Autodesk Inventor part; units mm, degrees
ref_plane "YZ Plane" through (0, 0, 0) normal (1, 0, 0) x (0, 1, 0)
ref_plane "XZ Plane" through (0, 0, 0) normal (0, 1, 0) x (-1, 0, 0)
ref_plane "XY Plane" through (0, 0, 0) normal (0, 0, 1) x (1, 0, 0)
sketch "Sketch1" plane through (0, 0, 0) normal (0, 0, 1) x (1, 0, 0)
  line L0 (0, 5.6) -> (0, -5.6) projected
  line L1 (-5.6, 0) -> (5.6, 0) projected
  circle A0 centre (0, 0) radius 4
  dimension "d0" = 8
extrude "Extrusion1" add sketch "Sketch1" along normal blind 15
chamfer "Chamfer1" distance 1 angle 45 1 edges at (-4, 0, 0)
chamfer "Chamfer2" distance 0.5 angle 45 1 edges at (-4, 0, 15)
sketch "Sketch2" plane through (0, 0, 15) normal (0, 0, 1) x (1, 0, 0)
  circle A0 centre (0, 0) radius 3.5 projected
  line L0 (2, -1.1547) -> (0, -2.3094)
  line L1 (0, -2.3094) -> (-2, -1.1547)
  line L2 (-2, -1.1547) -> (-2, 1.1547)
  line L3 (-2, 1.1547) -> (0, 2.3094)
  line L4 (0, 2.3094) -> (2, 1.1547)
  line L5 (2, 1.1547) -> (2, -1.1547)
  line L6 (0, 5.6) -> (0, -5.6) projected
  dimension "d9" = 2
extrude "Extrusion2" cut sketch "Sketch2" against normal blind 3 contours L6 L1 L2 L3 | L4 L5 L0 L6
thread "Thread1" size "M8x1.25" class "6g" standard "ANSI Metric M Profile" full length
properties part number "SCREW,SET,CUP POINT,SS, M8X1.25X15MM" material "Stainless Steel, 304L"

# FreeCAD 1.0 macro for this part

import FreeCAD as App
import Part
import Sketcher
from FreeCAD import Vector
Q = App.Units.Quantity


def edges_at(feature, points):
    """Names of the edges that pass closest to the given points."""
    edges = feature.Shape.Edges
    near = lambda p: min(range(len(edges)), key=lambda i: edges[i].distToShape(Part.Vertex(*p))[0])
    return sorted({f"Edge{near(p) + 1}" for p in points})

doc = App.newDocument("Part")
params = doc.addObject("Spreadsheet::Sheet", "Params")
for row, (alias, value) in enumerate([
    ("sketch1_diameter", "8 mm"),
    ("pad1_length", "15 mm"),
    ("chamfer_size", "1 mm"),
    ("chamfer2_size", "0.5 mm"),
    ("pocket1_length", "3 mm"),
], start=1):
    params.set(f"A{row}", alias)
    params.set(f"B{row}", "=" + value)
    params.setAlias(f"B{row}", alias)

body = doc.addObject("PartDesign::Body", "Body")

# Sketch on XY plane
sketch1 = doc.addObject("Sketcher::SketchObject", "Sketch")
body.addObject(sketch1)
sketch1.AttachmentSupport = (doc.XY_Plane, [""])
sketch1.MapMode = "FlatFace"
sketch1.addGeometry(Part.Circle(Vector(0, 0, 0), Vector(0, 0, 1), 4), False)
sketch1.addConstraint([
    Sketcher.Constraint("Coincident", 0, 3, -1, 1),
    Sketcher.Constraint("Diameter", 0, 8.0),
])
sketch1.setExpression("Constraints[1]", "Params.sketch1_diameter")
pad1 = doc.addObject("PartDesign::Pad", "Pad")
body.addObject(pad1)
pad1.Profile = sketch1
pad1.setExpression("Length", "Params.pad1_length")
doc.recompute()

chamfer = doc.addObject("PartDesign::Chamfer", "Chamfer")
body.addObject(chamfer)
chamfer.Base = (pad1, edges_at(pad1, [(-4, 0, 0)]))
chamfer.setExpression("Size", "Params.chamfer_size")
doc.recompute()

chamfer2 = doc.addObject("PartDesign::Chamfer", "Chamfer001")
body.addObject(chamfer2)
chamfer2.Base = (chamfer, edges_at(chamfer, [(-4, 0, 15)]))
chamfer2.setExpression("Size", "Params.chamfer2_size")

# Sketch on XY plane
sketch2 = doc.addObject("Sketcher::SketchObject", "Sketch001")
body.addObject(sketch2)
sketch2.AttachmentSupport = (doc.XY_Plane, [""])
sketch2.MapMode = "FlatFace"
sketch2.AttachmentOffset = App.Placement(Vector(0, 0, 15), App.Rotation())
sketch2.addGeometry([
    Part.LineSegment(Vector(-2, -1.2, 0), Vector(0, -2.3, 0)),  # 0
    Part.LineSegment(Vector(0, -2.3, 0), Vector(2, -1.2, 0)),  # 1
    Part.LineSegment(Vector(2, -1.2, 0), Vector(2, 1.2, 0)),  # 2
    Part.LineSegment(Vector(2, 1.2, 0), Vector(0, 2.3, 0)),  # 3
    Part.LineSegment(Vector(0, 2.3, 0), Vector(-2, 1.2, 0)),  # 4
    Part.LineSegment(Vector(-2, 1.2, 0), Vector(-2, -1.2, 0)),  # 5
], False)
sketch2.addConstraint([
    Sketcher.Constraint("Coincident", 0, 2, 1, 1),
    Sketcher.Constraint("Coincident", 1, 2, 2, 1),
    Sketcher.Constraint("Coincident", 2, 2, 3, 1),
    Sketcher.Constraint("Coincident", 3, 2, 4, 1),
    Sketcher.Constraint("Coincident", 4, 2, 5, 1),
    Sketcher.Constraint("Coincident", 5, 2, 0, 1),
    Sketcher.Constraint("Vertical", 2),
    Sketcher.Constraint("Vertical", 5),
    Sketcher.Constraint("Symmetric", 0, 2, 3, 2, -1, 1),
    Sketcher.Constraint("Symmetric", 1, 2, 4, 2, -1, 1),
    Sketcher.Constraint("PointOnObject", 0, 2, -2),
    Sketcher.Constraint("Parallel", 0, 3),
    Sketcher.Constraint("Horizontal", 2, 2, 4, 2),
    Sketcher.Constraint("DistanceX", -1, 1, 1, 2, 2.0),
    Sketcher.Constraint("Angle", 0, Q("-30 deg")),
    Sketcher.Constraint("DistanceY", 2, 1, 2, 2, 2.3094),
])
pocket1 = doc.addObject("PartDesign::Pocket", "Pocket")
body.addObject(pocket1)
pocket1.Profile = sketch2
pocket1.setExpression("Length", "Params.pocket1_length")

doc.recompute()
